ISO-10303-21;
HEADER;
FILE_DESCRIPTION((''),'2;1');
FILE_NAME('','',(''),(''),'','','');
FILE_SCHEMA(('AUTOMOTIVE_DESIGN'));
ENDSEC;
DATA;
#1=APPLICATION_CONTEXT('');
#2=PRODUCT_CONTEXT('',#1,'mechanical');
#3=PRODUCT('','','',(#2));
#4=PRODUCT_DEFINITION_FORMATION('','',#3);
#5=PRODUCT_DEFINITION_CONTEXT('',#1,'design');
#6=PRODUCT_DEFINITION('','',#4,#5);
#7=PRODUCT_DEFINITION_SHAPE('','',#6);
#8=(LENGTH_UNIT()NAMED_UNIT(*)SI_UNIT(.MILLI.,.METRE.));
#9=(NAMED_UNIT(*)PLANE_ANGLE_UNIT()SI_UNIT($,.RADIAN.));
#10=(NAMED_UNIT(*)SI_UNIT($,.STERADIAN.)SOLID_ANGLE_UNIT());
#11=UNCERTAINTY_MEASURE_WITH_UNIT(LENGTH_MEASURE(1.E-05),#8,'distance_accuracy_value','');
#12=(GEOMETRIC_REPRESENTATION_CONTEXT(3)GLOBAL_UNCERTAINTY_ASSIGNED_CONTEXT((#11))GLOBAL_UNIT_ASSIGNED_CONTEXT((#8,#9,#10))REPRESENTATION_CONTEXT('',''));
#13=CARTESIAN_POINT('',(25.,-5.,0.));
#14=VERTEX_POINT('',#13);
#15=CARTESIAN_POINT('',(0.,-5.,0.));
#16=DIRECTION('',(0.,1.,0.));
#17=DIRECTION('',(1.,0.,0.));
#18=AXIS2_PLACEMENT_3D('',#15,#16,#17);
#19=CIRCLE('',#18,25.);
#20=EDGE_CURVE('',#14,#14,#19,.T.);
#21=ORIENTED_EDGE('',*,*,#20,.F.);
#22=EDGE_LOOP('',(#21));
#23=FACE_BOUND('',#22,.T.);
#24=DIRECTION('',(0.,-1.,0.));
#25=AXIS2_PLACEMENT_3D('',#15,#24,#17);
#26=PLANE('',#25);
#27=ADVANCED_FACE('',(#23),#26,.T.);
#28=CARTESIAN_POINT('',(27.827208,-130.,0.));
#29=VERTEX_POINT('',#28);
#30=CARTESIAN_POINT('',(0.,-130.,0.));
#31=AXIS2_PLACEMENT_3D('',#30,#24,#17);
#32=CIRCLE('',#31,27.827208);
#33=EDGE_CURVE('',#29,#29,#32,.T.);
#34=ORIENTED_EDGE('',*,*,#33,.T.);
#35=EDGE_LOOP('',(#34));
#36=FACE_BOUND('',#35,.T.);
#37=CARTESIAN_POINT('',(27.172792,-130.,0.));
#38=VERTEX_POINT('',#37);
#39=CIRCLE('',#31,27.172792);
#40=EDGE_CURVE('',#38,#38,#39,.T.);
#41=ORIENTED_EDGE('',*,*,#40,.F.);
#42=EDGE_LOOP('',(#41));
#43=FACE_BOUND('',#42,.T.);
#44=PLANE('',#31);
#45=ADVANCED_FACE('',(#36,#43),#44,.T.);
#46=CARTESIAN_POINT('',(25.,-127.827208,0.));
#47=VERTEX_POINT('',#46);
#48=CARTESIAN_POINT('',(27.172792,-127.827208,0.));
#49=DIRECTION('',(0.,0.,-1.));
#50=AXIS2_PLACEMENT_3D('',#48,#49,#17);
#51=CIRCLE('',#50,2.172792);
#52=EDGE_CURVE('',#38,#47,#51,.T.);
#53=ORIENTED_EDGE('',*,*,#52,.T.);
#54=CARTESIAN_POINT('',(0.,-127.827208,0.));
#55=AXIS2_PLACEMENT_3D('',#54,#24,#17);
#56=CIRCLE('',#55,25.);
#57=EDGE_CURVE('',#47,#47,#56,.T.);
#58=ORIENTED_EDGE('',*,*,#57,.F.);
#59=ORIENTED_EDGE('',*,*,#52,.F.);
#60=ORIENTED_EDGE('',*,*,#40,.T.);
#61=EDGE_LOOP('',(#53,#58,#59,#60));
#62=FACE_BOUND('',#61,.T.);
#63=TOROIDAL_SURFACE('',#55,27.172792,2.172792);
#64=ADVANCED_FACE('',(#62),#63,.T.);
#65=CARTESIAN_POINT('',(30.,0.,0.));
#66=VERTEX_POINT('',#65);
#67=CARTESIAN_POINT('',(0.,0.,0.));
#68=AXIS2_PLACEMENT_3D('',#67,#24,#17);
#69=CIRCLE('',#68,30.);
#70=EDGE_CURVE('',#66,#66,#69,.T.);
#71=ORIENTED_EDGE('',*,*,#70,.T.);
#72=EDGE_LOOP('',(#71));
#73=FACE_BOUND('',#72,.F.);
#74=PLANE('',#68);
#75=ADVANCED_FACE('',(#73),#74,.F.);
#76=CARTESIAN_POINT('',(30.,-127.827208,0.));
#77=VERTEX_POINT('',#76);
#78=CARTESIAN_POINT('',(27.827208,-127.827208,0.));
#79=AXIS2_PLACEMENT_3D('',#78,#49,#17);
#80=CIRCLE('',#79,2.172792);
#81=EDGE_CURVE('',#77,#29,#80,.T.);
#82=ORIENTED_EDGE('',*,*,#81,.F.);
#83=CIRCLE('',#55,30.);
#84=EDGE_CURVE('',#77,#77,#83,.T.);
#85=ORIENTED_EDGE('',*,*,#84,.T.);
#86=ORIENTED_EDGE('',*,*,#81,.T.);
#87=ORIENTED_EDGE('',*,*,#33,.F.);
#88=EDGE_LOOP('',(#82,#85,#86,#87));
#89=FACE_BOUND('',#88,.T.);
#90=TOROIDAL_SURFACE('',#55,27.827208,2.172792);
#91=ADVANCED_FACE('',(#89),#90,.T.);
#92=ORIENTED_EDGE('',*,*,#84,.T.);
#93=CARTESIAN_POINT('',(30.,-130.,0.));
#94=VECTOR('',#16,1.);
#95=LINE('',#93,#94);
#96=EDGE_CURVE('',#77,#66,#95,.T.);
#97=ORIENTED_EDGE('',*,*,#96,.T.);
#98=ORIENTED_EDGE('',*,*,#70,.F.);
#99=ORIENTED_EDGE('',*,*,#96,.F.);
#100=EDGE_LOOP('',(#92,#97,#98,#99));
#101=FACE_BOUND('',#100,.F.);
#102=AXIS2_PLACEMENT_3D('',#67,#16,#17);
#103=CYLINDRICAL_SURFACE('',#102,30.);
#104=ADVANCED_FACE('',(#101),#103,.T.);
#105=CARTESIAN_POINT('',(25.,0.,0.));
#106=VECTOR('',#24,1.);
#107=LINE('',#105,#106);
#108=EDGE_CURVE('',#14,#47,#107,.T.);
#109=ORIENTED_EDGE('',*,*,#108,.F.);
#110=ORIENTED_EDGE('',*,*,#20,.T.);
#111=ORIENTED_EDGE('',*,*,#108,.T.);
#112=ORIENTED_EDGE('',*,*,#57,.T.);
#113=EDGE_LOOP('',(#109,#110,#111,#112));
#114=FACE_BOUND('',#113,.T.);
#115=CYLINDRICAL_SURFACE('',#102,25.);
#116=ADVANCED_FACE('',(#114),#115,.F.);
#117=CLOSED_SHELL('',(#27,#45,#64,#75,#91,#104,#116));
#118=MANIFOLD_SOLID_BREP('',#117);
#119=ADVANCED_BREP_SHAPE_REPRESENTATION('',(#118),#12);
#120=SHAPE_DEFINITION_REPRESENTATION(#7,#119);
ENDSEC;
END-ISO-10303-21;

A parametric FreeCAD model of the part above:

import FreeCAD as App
import Part
import Sketcher


def edges_at(feature, points):
    """Names of the edges that pass closest to the given points."""
    edges = feature.Shape.Edges
    near = lambda p: min(range(len(edges)), key=lambda i: edges[i].distToShape(Part.Vertex(*p))[0])
    return sorted({f"Edge{near(p) + 1}" for p in points})

doc = App.newDocument("Part")
params = doc.addObject("Spreadsheet::Sheet", "Params")
for row, (alias, value) in enumerate([
    ("sketch1_diameter", "60 mm"),
    ("pad1_length", "5 mm"),
    ("sketch2_diameter", "60 mm"),
    ("sketch2_diameter2", "50 mm"),
    ("pad2_length", "130 mm"),
    ("fillet_radius", "2.172792 mm"),
    ("fillet2_radius", "2.172792 mm"),
], start=1):
    params.set(f"A{row}", alias)
    params.set(f"B{row}", "=" + value)
    params.setAlias(f"B{row}", alias)

body = doc.addObject("PartDesign::Body", "Body")

sketch1 = doc.addObject("Sketcher::SketchObject", "Sketch")
body.addObject(sketch1)
sketch1.AttachmentSupport = (doc.XZ_Plane, [""])
sketch1.MapMode = "FlatFace"
sketch1.addGeometry(Part.Circle(App.Vector(0, 0, 0), App.Vector(0, 0, 1), 30), False)
sketch1.addConstraint([
    Sketcher.Constraint("Coincident", 0, 3, -1, 1),
    Sketcher.Constraint("Diameter", 0, 60.0),
])
sketch1.setExpression("Constraints[1]", "Params.sketch1_diameter")
pad1 = doc.addObject("PartDesign::Pad", "Pad")
body.addObject(pad1)
pad1.Profile = sketch1
pad1.setExpression("Length", "Params.pad1_length")

sketch2 = doc.addObject("Sketcher::SketchObject", "Sketch001")
body.addObject(sketch2)
sketch2.AttachmentSupport = (doc.XZ_Plane, [""])
sketch2.MapMode = "FlatFace"
sketch2.addGeometry([
    Part.Circle(App.Vector(0, 0, 0), App.Vector(0, 0, 1), 30),
    Part.Circle(App.Vector(0, 0, 0), App.Vector(0, 0, 1), 25),
], False)
sketch2.addConstraint([
    Sketcher.Constraint("Coincident", 0, 3, -1, 1),
    Sketcher.Constraint("Coincident", 1, 3, -1, 1),
    Sketcher.Constraint("Diameter", 0, 60.0),
    Sketcher.Constraint("Diameter", 1, 50.0),
])
sketch2.setExpression("Constraints[2]", "Params.sketch2_diameter")
sketch2.setExpression("Constraints[3]", "Params.sketch2_diameter2")
pad2 = doc.addObject("PartDesign::Pad", "Pad001")
body.addObject(pad2)
pad2.Profile = sketch2
pad2.setExpression("Length", "Params.pad2_length")
doc.recompute()

fillet = doc.addObject("PartDesign::Fillet", "Fillet")
body.addObject(fillet)
fillet.Base = (pad2, edges_at(pad2, [(-30, -130, 0)]))
fillet.setExpression("Radius", "Params.fillet_radius")
doc.recompute()

fillet2 = doc.addObject("PartDesign::Fillet", "Fillet001")
body.addObject(fillet2)
fillet2.Base = (fillet, edges_at(fillet, [(-25, -130, 0)]))
fillet2.setExpression("Radius", "Params.fillet2_radius")

doc.recompute()
